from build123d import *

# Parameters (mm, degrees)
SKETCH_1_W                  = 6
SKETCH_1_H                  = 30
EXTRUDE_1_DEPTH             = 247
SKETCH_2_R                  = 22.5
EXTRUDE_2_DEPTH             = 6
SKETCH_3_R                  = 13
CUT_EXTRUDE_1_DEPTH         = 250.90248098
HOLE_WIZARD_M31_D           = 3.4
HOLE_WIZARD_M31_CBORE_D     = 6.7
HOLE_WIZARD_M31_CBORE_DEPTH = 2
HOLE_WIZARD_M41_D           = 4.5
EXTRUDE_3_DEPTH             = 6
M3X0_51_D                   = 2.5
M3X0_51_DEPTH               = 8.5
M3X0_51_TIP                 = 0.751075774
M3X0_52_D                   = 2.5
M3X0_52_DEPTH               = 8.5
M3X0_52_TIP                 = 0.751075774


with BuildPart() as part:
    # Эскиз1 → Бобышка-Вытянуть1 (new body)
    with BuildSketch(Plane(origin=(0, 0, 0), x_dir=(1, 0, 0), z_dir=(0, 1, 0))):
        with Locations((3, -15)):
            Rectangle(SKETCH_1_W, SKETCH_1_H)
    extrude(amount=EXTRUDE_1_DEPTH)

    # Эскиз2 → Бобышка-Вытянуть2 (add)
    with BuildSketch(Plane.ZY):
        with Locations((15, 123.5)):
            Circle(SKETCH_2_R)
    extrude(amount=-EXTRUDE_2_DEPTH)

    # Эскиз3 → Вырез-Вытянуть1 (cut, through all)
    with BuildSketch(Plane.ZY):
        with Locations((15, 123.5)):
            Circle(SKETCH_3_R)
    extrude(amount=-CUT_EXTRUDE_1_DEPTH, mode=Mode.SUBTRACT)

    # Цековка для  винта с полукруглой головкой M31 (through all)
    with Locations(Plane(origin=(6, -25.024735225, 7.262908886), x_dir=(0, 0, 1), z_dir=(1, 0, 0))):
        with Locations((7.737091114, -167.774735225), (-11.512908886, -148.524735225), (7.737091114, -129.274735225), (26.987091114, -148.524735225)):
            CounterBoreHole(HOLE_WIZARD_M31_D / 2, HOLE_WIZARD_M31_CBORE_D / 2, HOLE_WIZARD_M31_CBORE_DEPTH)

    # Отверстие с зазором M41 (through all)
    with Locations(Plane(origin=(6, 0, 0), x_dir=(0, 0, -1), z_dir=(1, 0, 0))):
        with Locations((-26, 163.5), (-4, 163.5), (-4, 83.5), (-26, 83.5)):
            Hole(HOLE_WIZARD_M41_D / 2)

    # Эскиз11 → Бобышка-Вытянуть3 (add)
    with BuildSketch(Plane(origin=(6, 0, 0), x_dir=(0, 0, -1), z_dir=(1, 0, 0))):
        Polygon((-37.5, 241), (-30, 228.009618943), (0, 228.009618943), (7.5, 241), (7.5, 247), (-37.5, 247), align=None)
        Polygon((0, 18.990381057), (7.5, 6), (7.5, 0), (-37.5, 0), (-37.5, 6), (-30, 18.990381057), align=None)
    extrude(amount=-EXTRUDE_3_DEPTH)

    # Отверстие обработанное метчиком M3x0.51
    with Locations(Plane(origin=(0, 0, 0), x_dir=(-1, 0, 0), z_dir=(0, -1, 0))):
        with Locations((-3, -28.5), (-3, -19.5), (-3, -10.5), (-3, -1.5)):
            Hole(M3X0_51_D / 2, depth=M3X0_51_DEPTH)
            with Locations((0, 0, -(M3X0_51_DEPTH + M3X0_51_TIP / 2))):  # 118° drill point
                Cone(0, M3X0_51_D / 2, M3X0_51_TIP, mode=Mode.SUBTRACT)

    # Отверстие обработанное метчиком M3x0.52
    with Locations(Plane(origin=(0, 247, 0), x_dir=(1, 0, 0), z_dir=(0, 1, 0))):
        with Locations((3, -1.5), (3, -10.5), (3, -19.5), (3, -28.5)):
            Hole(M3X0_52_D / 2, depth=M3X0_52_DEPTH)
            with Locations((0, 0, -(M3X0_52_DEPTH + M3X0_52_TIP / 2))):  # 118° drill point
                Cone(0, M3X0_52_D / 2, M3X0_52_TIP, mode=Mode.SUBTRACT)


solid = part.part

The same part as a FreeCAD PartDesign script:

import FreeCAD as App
import Part
import Sketcher

V = App.Vector
Q = App.Units.Quantity


def add_polygon(sketch, points):
    """Adds a closed chain of lines whose ends are joined by coincident constraints."""
    first, n = sketch.GeometryCount, len(points)
    for a, b in zip(points, points[1:] + points[:1]):
        sketch.addGeometry(Part.LineSegment(App.Vector(*a, 0), App.Vector(*b, 0)), False)
    for i in range(n):
        sketch.addConstraint(Sketcher.Constraint("Coincident", first + i, 2, first + (i + 1) % n, 1))

doc = App.newDocument("Part")
body = doc.addObject("PartDesign::Body", "Body")

# Sketch on XZ plane
sketch1 = body.newObject("Sketcher::SketchObject", "Sketch")
sketch1.AttachmentSupport = (doc.getObject("XZ_Plane"), [""])
sketch1.MapMode = "FlatFace"
add_polygon(sketch1, [(0, 0), (0, 30), (6, 30), (6, 0)])  # lines 0-3
sketch1.addConstraint([
    Sketcher.Constraint("Vertical", 0),
    Sketcher.Constraint("Horizontal", 1),
    Sketcher.Constraint("Vertical", 2),
    Sketcher.Constraint("Horizontal", 3),
    Sketcher.Constraint("Coincident", 3, 2, -1, 1),
    Sketcher.Constraint("DistanceX", 1, 1, 1, 2, 6.0),
    Sketcher.Constraint("DistanceY", 0, 1, 0, 2, 30.0),
])
pad1 = body.newObject("PartDesign::Pad", "Pad")
pad1.Profile = sketch1
pad1.Length = 247
pad1.Reversed = True

# Sketch on YZ plane
sketch2 = body.newObject("Sketcher::SketchObject", "Sketch001")
sketch2.AttachmentSupport = (doc.getObject("YZ_Plane"), [""])
sketch2.MapMode = "FlatFace"
sketch2.addGeometry(Part.Circle(V(124, 15, 0), V(0, 0, 1), 22), False)
sketch2.addConstraint([
    Sketcher.Constraint("Diameter", 0, 45.0),
    Sketcher.Constraint("DistanceY", -1, 1, 0, 3, 15.0),
    Sketcher.Constraint("DistanceX", -1, 1, 0, 3, 123.5),
])
pad2 = body.newObject("PartDesign::Pad", "Pad001")
pad2.Profile = sketch2
pad2.Length = 6

# Sketch on YZ plane
sketch3 = body.newObject("Sketcher::SketchObject", "Sketch002")
sketch3.AttachmentSupport = (doc.getObject("YZ_Plane"), [""])
sketch3.MapMode = "FlatFace"
sketch3.addGeometry(Part.Circle(V(124, 15, 0), V(0, 0, 1), 13), False)
sketch3.addConstraint([
    Sketcher.Constraint("Diameter", 0, 26.0),
    Sketcher.Constraint("DistanceY", -1, 1, 0, 3, 15.0),
    Sketcher.Constraint("DistanceX", -1, 1, 0, 3, 123.5),
])
pocket1 = body.newObject("PartDesign::Pocket", "Pocket")
pocket1.Profile = sketch3
pocket1.Type = "ThroughAll"
pocket1.Reversed = True

# Sketch on YZ plane
sketch4 = body.newObject("Sketcher::SketchObject", "Sketch003")
sketch4.AttachmentSupport = (doc.getObject("YZ_Plane"), [""])
sketch4.MapMode = "FlatFace"
sketch4.AttachmentOffset = App.Placement(V(0, 0, 6), App.Rotation())
sketch4.addGeometry([
    Part.Circle(V(142.8, 15, 0), V(0, 0, 1), 1.7),
    Part.Circle(V(123.5, -4.2, 0), V(0, 0, 1), 1.7),
    Part.Circle(V(104.2, 15, 0), V(0, 0, 1), 1.7),
    Part.Circle(V(123.5, 34.2, 0), V(0, 0, 1), 1.7),
], False)
sketch4.addConstraint([
    Sketcher.Constraint("Equal", 0, 1),
    Sketcher.Constraint("Equal", 1, 2),
    Sketcher.Constraint("Equal", 2, 3),
    Sketcher.Constraint("Horizontal", 0, 3, 2, 3),
    Sketcher.Constraint("Vertical", 1, 3, 3, 3),
    Sketcher.Constraint("Diameter", 0, 3.4),
    Sketcher.Constraint("DistanceY", -1, 1, 0, 3, 15.0),
    Sketcher.Constraint("DistanceX", -1, 1, 1, 3, 123.5),
    Sketcher.Constraint("DistanceX", 2, 3, 0, 3, 38.5),
    Sketcher.Constraint("DistanceY", 1, 3, 3, 3, 38.5),
    Sketcher.Constraint("DistanceX", -1, 1, 0, 3, 142.75),
    Sketcher.Constraint("DistanceY", 1, 3, -1, 1, 4.25),
])
doc.recompute()
hole = body.newObject("PartDesign::Hole", "Hole")
hole.Profile = sketch4
hole.ThreadType = "None"
hole.Diameter = 3.4
hole.DepthType = "ThroughAll"
hole.HoleCutType = "Counterbore"
hole.HoleCutDiameter = 6.7
hole.HoleCutDepth = 2

# Sketch on YZ plane
sketch5 = body.newObject("Sketcher::SketchObject", "Sketch004")
sketch5.AttachmentSupport = (doc.getObject("YZ_Plane"), [""])
sketch5.MapMode = "FlatFace"
sketch5.AttachmentOffset = App.Placement(V(0, 0, 6), App.Rotation())
sketch5.addGeometry([
    Part.Circle(V(163.5, 26, 0), V(0, 0, 1), 2.2),
    Part.Circle(V(163.5, 4, 0), V(0, 0, 1), 2.2),
    Part.Circle(V(83.5, 4, 0), V(0, 0, 1), 2.2),
    Part.Circle(V(83.5, 26, 0), V(0, 0, 1), 2.2),
], False)
sketch5.addConstraint([
    Sketcher.Constraint("Equal", 0, 1),
    Sketcher.Constraint("Equal", 1, 2),
    Sketcher.Constraint("Equal", 2, 3),
    Sketcher.Constraint("Horizontal", 1, 3, 2, 3),
    Sketcher.Constraint("Horizontal", 0, 3, 3, 3),
    Sketcher.Constraint("Vertical", 0, 3, 1, 3),
    Sketcher.Constraint("Vertical", 2, 3, 3, 3),
    Sketcher.Constraint("Diameter", 0, 4.5),
    Sketcher.Constraint("DistanceY", -1, 1, 0, 3, 26.0),
    Sketcher.Constraint("DistanceY", -1, 1, 1, 3, 4.0),
    Sketcher.Constraint("DistanceX", 2, 3, 1, 3, 80.0),
    Sketcher.Constraint("DistanceX", -1, 1, 0, 3, 163.5),
])
doc.recompute()
hole2 = body.newObject("PartDesign::Hole", "Hole001")
hole2.Profile = sketch5
hole2.ThreadType = "None"
hole2.Diameter = 4.5
hole2.DepthType = "ThroughAll"

# Sketch on YZ plane
sketch6 = body.newObject("Sketcher::SketchObject", "Sketch005")
sketch6.AttachmentSupport = (doc.getObject("YZ_Plane"), [""])
sketch6.MapMode = "FlatFace"
sketch6.AttachmentOffset = App.Placement(V(0, 0, 6), App.Rotation())
add_polygon(sketch6, [(241, 38), (228, 30), (228, 0), (241, -8), (247, -8), (247, 38)])  # lines 0-5
add_polygon(sketch6, [(6, -8), (19, 0), (19, 30), (6, 38), (0, 38), (0, -8)])  # lines 6-11
sketch6.addConstraint([
    Sketcher.Constraint("Vertical", 1),
    Sketcher.Constraint("Horizontal", 3),
    Sketcher.Constraint("Vertical", 4),
    Sketcher.Constraint("Horizontal", 5),
    Sketcher.Constraint("Vertical", 7),
    Sketcher.Constraint("Horizontal", 9),
    Sketcher.Constraint("Vertical", 10),
    Sketcher.Constraint("Horizontal", 11),
    Sketcher.Constraint("PointOnObject", 1, 2, -1),
    Sketcher.Constraint("PointOnObject", 6, 2, -1),
    Sketcher.Constraint("PointOnObject", 9, 2, -2),
    Sketcher.Constraint("Parallel", 0, 6),
    Sketcher.Constraint("Parallel", 2, 8),
    Sketcher.Constraint("Horizontal", 0, 2, 7, 2),
    Sketcher.Constraint("Horizontal", 5, 2, 8, 2),
    Sketcher.Constraint("Horizontal", 3, 2, 10, 2),
    Sketcher.Constraint("Vertical", 2, 2, 5, 2),
    Sketcher.Constraint("Vertical", 8, 2, 11, 2),
    Sketcher.Constraint("Equal", 5, 9),
    Sketcher.Constraint("DistanceX", 3, 1, 3, 2, 6.0),
    Sketcher.Constraint("DistanceY", 1, 2, 1, 1, 30.0),
    Sketcher.Constraint("DistanceY", 4, 1, 4, 2, 45.0),
    Sketcher.Constraint("Angle", 0, Q("-150 deg")),
    Sketcher.Constraint("DistanceX", -1, 1, 2, 2, 241.0),
])
pad3 = body.newObject("PartDesign::Pad", "Pad002")
pad3.Profile = sketch6
pad3.Length = 6
pad3.Reversed = True

# Sketch on XZ plane
sketch7 = body.newObject("Sketcher::SketchObject", "Sketch006")
sketch7.AttachmentSupport = (doc.getObject("XZ_Plane"), [""])
sketch7.MapMode = "FlatFace"
sketch7.addGeometry([
    Part.Circle(V(3, 28.5, 0), V(0, 0, 1), 1.2),
    Part.Circle(V(3, 19.5, 0), V(0, 0, 1), 1.2),
    Part.Circle(V(3, 10.5, 0), V(0, 0, 1), 1.2),
    Part.Circle(V(3, 1.5, 0), V(0, 0, 1), 1.2),
], False)
sketch7.addConstraint([
    Sketcher.Constraint("Equal", 0, 1),
    Sketcher.Constraint("Equal", 1, 2),
    Sketcher.Constraint("Equal", 2, 3),
    Sketcher.Constraint("Vertical", 0, 3, 1, 3),
    Sketcher.Constraint("Vertical", 1, 3, 2, 3),
    Sketcher.Constraint("Vertical", 2, 3, 3, 3),
    Sketcher.Constraint("Diameter", 0, 2.5),
    Sketcher.Constraint("DistanceX", -1, 1, 0, 3, 3.0),
    Sketcher.Constraint("DistanceY", 1, 3, 0, 3, 9.0),
    Sketcher.Constraint("DistanceY", 2, 3, 1, 3, 9.0),
    Sketcher.Constraint("DistanceY", 3, 3, 2, 3, 9.0),
    Sketcher.Constraint("DistanceY", -1, 1, 0, 3, 28.5),
])
doc.recompute()
hole3 = body.newObject("PartDesign::Hole", "Hole002")
hole3.Profile = sketch7
hole3.ThreadType = "None"
hole3.Diameter = 2.5
hole3.DepthType = "Dimension"
hole3.Depth = 8.5
hole3.DrillPoint = "Angled"
hole3.DrillPointAngle = 118

# Sketch on XZ plane
sketch8 = body.newObject("Sketcher::SketchObject", "Sketch007")
sketch8.AttachmentSupport = (doc.getObject("XZ_Plane"), [""])
sketch8.MapMode = "FlatFace"
sketch8.AttachmentOffset = App.Placement(V(0, 0, -247), App.Rotation())
sketch8.addGeometry([
    Part.Circle(V(3, 1.5, 0), V(0, 0, 1), 1.2),
    Part.Circle(V(3, 10.5, 0), V(0, 0, 1), 1.2),
    Part.Circle(V(3, 19.5, 0), V(0, 0, 1), 1.2),
    Part.Circle(V(3, 28.5, 0), V(0, 0, 1), 1.2),
], False)
sketch8.addConstraint([
    Sketcher.Constraint("Equal", 0, 1),
    Sketcher.Constraint("Equal", 1, 2),
    Sketcher.Constraint("Equal", 2, 3),
    Sketcher.Constraint("Vertical", 0, 3, 1, 3),
    Sketcher.Constraint("Vertical", 1, 3, 2, 3),
    Sketcher.Constraint("Vertical", 2, 3, 3, 3),
    Sketcher.Constraint("Diameter", 0, 2.5),
    Sketcher.Constraint("DistanceX", -1, 1, 0, 3, 3.0),
    Sketcher.Constraint("DistanceY", 0, 3, 1, 3, 9.0),
    Sketcher.Constraint("DistanceY", 1, 3, 2, 3, 9.0),
    Sketcher.Constraint("DistanceY", 2, 3, 3, 3, 9.0),
    Sketcher.Constraint("DistanceY", -1, 1, 0, 3, 1.5),
])
doc.recompute()
hole4 = body.newObject("PartDesign::Hole", "Hole003")
hole4.Profile = sketch8
hole4.ThreadType = "None"
hole4.Diameter = 2.5
hole4.DepthType = "Dimension"
hole4.Depth = 8.5
hole4.DrillPoint = "Angled"
hole4.DrillPointAngle = 118
hole4.Reversed = True

doc.recompute()
